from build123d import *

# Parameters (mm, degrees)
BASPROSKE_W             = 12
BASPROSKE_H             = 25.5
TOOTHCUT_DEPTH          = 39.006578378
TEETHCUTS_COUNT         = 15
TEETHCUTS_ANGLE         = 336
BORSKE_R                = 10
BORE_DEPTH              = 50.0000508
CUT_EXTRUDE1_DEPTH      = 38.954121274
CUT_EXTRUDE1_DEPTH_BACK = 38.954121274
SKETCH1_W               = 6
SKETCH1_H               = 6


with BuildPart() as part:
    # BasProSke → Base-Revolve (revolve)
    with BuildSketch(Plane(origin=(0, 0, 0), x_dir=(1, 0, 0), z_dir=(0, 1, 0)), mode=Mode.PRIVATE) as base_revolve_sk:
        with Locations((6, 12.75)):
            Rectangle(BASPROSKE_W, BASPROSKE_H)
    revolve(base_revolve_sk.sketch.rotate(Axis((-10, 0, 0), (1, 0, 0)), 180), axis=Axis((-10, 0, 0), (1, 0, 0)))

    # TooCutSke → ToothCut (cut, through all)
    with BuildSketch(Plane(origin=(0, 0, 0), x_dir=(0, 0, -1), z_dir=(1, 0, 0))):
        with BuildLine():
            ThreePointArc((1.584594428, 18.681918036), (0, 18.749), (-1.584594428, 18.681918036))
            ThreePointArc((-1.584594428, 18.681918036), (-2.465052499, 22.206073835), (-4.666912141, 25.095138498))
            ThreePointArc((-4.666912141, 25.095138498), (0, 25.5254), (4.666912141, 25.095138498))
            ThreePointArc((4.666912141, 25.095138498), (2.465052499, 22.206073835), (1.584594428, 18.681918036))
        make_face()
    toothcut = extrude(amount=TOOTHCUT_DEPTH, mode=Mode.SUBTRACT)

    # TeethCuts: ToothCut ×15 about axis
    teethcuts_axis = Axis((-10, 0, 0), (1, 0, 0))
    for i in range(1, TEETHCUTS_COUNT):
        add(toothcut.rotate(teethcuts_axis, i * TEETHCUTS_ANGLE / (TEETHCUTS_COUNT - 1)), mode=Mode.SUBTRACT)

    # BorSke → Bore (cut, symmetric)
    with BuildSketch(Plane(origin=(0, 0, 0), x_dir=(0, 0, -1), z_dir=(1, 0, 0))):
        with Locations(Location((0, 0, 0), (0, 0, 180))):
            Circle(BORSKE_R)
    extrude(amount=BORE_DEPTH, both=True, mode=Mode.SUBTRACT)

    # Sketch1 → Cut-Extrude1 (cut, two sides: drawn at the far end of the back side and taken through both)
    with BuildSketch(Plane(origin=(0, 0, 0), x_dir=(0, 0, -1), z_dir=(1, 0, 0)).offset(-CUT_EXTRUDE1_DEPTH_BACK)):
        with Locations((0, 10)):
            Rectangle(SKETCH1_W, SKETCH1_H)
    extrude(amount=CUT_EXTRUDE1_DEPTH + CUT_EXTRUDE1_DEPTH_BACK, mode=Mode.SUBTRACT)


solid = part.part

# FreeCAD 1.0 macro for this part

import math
import FreeCAD as App
import Part
import Sketcher
from FreeCAD import Vector
Q = App.Units.Quantity

doc = App.newDocument("Part")
params = doc.addObject("Spreadsheet::Sheet", "Params")
for row, (alias, value) in enumerate([
    ("sketch1_width", "12 mm"),
    ("sketch1_height", "25.5 mm"),
    ("revolution_angle", "360 deg"),
    ("sketch2_radius", "9 mm"),
    ("sketch3_diameter", "20 mm"),
    ("pocket2_length", "100.000102 mm"),
    ("sketch4_width", "6 mm"),
], start=1):
    params.set(f"A{row}", alias)
    params.set(f"B{row}", "=" + value)
    params.setAlias(f"B{row}", alias)

body = doc.addObject("PartDesign::Body", "Body")

# Sketch on XZ plane
sketch1 = doc.addObject("Sketcher::SketchObject", "Sketch")
body.addObject(sketch1)
sketch1.AttachmentSupport = (doc.XZ_Plane, [""])
sketch1.MapMode = "FlatFace"
sketch1.addGeometry(Part.LineSegment(Vector(0, -26, 0), Vector(0, 0, 0)), False)
sketch1.addGeometry(Part.LineSegment(Vector(0, 0, 0), Vector(12, 0, 0)), False)
sketch1.addGeometry(Part.LineSegment(Vector(12, 0, 0), Vector(12, -26, 0)), False)
sketch1.addGeometry(Part.LineSegment(Vector(12, -26, 0), Vector(0, -26, 0)), False)
sketch1.addConstraint(Sketcher.Constraint("Coincident", 0, 2, 1, 1))
sketch1.addConstraint(Sketcher.Constraint("Coincident", 1, 2, 2, 1))
sketch1.addConstraint(Sketcher.Constraint("Coincident", 2, 2, 3, 1))
sketch1.addConstraint(Sketcher.Constraint("Coincident", 3, 2, 0, 1))
sketch1.addConstraint(Sketcher.Constraint("Vertical", 0))
sketch1.addConstraint(Sketcher.Constraint("Horizontal", 1))
sketch1.addConstraint(Sketcher.Constraint("Vertical", 2))
sketch1.addConstraint(Sketcher.Constraint("Horizontal", 3))
sketch1.addConstraint(Sketcher.Constraint("Coincident", 0, 2, -1, 1))
sketch1.addConstraint(Sketcher.Constraint("DistanceX", 1, 1, 1, 2, Q("12 mm")))
sketch1.addConstraint(Sketcher.Constraint("DistanceY", 0, 1, 0, 2, Q("25.5 mm")))
sketch1.setExpression("Constraints[9]", "Params.sketch1_width")
sketch1.setExpression("Constraints[10]", "Params.sketch1_height")
revolution = doc.addObject("PartDesign::Revolution", "Revolution")
body.addObject(revolution)
revolution.Profile = sketch1
revolution.ReferenceAxis = (sketch1, ["H_Axis"])
revolution.setExpression("Angle", "Params.revolution_angle")

# Sketch on YZ plane
sketch2 = doc.addObject("Sketcher::SketchObject", "Sketch001")
body.addObject(sketch2)
sketch2.AttachmentSupport = (doc.YZ_Plane, [""])
sketch2.MapMode = "FlatFace"
sketch2.addGeometry(Part.ArcOfCircle(Part.Circle(Vector(0, 0, 0), Vector(0, 0, 1), 18.7), math.radians(-4.85), math.radians(4.85)), False)
sketch2.addGeometry(Part.ArcOfCircle(Part.Circle(Vector(18.3, -10.6, 0), Vector(0, 0, 1), 9), math.radians(41), math.radians(88)), False)
sketch2.addGeometry(Part.ArcOfCircle(Part.Circle(Vector(0, 0, 0), Vector(0, 0, 1), 25.5), math.radians(-11), math.radians(11)), False)
sketch2.addGeometry(Part.ArcOfCircle(Part.Circle(Vector(18.3, 10.6, 0), Vector(0, 0, 1), 9), math.radians(-88), math.radians(-41)), False)
sketch2.addConstraint(Sketcher.Constraint("Coincident", 0, 1, 1, 2))
sketch2.addConstraint(Sketcher.Constraint("Coincident", 1, 1, 2, 1))
sketch2.addConstraint(Sketcher.Constraint("Coincident", 2, 2, 3, 2))
sketch2.addConstraint(Sketcher.Constraint("Coincident", 3, 1, 0, 2))
sketch2.addConstraint(Sketcher.Constraint("Coincident", 0, 3, -1, 1))
sketch2.addConstraint(Sketcher.Constraint("Coincident", 2, 3, -1, 1))
sketch2.addConstraint(Sketcher.Constraint("Equal", 1, 3))
sketch2.addConstraint(Sketcher.Constraint("Symmetric", 1, 3, 3, 3, -1))
sketch2.addConstraint(Sketcher.Constraint("Radius", 1, Q("9 mm")))
sketch2.addConstraint(Sketcher.Constraint("Radius", 0, Q("18.749 mm")))
sketch2.addConstraint(Sketcher.Constraint("Radius", 2, Q("25.5254 mm")))
sketch2.addConstraint(Sketcher.Constraint("DistanceY", 1, 3, -1, 1, Q("10.576799 mm")))
sketch2.addConstraint(Sketcher.Constraint("DistanceX", -1, 1, 1, 3, Q("18.307412 mm")))
sketch2.setExpression("Constraints[8]", "Params.sketch2_radius")
pocket1 = doc.addObject("PartDesign::Pocket", "Pocket")
body.addObject(pocket1)
pocket1.Profile = sketch2
pocket1.Type = "ThroughAll"
pocket1.Reversed = True
doc.recompute()

polarpattern = doc.addObject("PartDesign::PolarPattern", "PolarPattern")
body.addObject(polarpattern)
polarpattern.Originals = [pocket1]
polarpattern.Axis = (doc.X_Axis, [""])
polarpattern.Angle = 360
polarpattern.Occurrences = 15
body.Tip = polarpattern

# Sketch on YZ plane
sketch3 = doc.addObject("Sketcher::SketchObject", "Sketch002")
body.addObject(sketch3)
sketch3.AttachmentSupport = (doc.YZ_Plane, [""])
sketch3.MapMode = "FlatFace"
sketch3.addGeometry(Part.Circle(Vector(0, 0, 0), Vector(0, 0, 1), 10), False)
sketch3.addConstraint(Sketcher.Constraint("Coincident", 0, 3, -1, 1))
sketch3.addConstraint(Sketcher.Constraint("Diameter", 0, Q("20 mm")))
sketch3.setExpression("Constraints[1]", "Params.sketch3_diameter")
pocket2 = doc.addObject("PartDesign::Pocket", "Pocket001")
body.addObject(pocket2)
pocket2.Profile = sketch3
pocket2.setExpression("Length", "Params.pocket2_length")
pocket2.Midplane = True

# Sketch on YZ plane
sketch4 = doc.addObject("Sketcher::SketchObject", "Sketch003")
body.addObject(sketch4)
sketch4.AttachmentSupport = (doc.YZ_Plane, [""])
sketch4.MapMode = "FlatFace"
sketch4.addGeometry(Part.LineSegment(Vector(13, 3, 0), Vector(7, 3, 0)), False)
sketch4.addGeometry(Part.LineSegment(Vector(7, 3, 0), Vector(7, -3, 0)), False)
sketch4.addGeometry(Part.LineSegment(Vector(7, -3, 0), Vector(13, -3, 0)), False)
sketch4.addGeometry(Part.LineSegment(Vector(13, -3, 0), Vector(13, 3, 0)), False)
sketch4.addConstraint(Sketcher.Constraint("Coincident", 0, 2, 1, 1))
sketch4.addConstraint(Sketcher.Constraint("Coincident", 1, 2, 2, 1))
sketch4.addConstraint(Sketcher.Constraint("Coincident", 2, 2, 3, 1))
sketch4.addConstraint(Sketcher.Constraint("Coincident", 3, 2, 0, 1))
sketch4.addConstraint(Sketcher.Constraint("Horizontal", 0))
sketch4.addConstraint(Sketcher.Constraint("Vertical", 1))
sketch4.addConstraint(Sketcher.Constraint("Horizontal", 2))
sketch4.addConstraint(Sketcher.Constraint("Vertical", 3))
sketch4.addConstraint(Sketcher.Constraint("Equal", 2, 1))
sketch4.addConstraint(Sketcher.Constraint("DistanceX", 0, 2, 0, 1, Q("6 mm")))
sketch4.addConstraint(Sketcher.Constraint("DistanceX", -1, 1, 0, 2, Q("7 mm")))
sketch4.addConstraint(Sketcher.Constraint("DistanceY", -1, 1, 0, 2, Q("3 mm")))
sketch4.setExpression("Constraints[9]", "Params.sketch4_width")
pocket3 = doc.addObject("PartDesign::Pocket", "Pocket002")
body.addObject(pocket3)
pocket3.Profile = sketch4
pocket3.Type = "ThroughAll"
pocket3.Midplane = True

doc.recompute()
